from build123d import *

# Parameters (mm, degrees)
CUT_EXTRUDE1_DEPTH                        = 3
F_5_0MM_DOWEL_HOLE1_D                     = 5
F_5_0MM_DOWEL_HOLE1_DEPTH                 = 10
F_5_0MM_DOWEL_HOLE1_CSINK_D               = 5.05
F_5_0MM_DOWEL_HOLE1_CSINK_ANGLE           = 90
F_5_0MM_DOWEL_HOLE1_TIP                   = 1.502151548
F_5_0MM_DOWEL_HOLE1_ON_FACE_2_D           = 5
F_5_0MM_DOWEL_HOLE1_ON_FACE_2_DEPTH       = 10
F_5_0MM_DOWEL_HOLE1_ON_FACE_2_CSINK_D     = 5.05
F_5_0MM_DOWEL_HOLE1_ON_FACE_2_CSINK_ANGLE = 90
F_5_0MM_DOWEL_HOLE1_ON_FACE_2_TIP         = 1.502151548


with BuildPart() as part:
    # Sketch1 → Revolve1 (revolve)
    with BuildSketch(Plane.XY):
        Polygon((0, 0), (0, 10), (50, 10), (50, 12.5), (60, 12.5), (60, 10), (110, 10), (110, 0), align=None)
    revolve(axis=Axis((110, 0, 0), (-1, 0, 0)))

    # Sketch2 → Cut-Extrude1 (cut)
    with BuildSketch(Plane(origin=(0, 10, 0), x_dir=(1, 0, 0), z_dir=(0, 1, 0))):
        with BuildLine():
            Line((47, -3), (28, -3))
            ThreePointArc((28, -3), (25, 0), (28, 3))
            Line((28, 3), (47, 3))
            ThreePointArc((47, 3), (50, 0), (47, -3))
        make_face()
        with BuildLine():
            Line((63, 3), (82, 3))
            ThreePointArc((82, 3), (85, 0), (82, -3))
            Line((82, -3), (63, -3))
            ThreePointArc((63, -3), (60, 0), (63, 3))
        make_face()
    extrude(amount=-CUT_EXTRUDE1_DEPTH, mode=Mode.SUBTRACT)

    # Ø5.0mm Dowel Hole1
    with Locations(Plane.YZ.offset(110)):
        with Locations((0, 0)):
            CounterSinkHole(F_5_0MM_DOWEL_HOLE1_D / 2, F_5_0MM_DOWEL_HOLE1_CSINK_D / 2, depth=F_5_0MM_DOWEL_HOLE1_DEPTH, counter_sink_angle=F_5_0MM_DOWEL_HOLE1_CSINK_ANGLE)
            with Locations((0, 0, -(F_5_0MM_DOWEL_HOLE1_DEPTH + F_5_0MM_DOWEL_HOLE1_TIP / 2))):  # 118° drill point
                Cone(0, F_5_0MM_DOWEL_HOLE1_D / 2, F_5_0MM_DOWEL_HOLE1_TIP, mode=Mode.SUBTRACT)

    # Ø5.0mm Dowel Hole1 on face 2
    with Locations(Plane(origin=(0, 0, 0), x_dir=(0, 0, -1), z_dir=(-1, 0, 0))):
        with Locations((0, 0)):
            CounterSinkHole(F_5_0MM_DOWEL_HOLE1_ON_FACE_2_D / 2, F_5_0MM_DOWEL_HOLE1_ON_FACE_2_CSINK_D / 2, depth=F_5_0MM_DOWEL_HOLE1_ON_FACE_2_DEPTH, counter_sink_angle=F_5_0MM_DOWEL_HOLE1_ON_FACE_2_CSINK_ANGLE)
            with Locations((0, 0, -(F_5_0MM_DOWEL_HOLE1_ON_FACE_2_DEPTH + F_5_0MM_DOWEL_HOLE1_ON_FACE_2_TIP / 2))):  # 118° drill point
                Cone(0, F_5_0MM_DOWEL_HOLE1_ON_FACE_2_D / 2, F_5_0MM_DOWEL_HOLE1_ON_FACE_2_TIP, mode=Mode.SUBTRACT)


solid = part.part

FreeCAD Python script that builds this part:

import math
import FreeCAD as App
import Part
import Sketcher

V = App.Vector
Q = App.Units.Quantity

doc = App.newDocument("Part")
body = doc.addObject("PartDesign::Body", "Body")

# Sketch on XY plane
sketch1 = body.newObject("Sketcher::SketchObject", "Sketch")
sketch1.AttachmentSupport = (doc.getObject("XY_Plane"), [""])
sketch1.MapMode = "FlatFace"
sketch1.addGeometry([
    Part.LineSegment(V(0, 10, 0), V(0, 0, 0)),  # 0
    Part.LineSegment(V(0, 0, 0), V(110, 0, 0)),  # 1
    Part.LineSegment(V(110, 0, 0), V(110, 10, 0)),  # 2
    Part.LineSegment(V(110, 10, 0), V(60, 10, 0)),  # 3
    Part.LineSegment(V(60, 10, 0), V(60, 12.5, 0)),  # 4
    Part.LineSegment(V(60, 12.5, 0), V(50, 12.5, 0)),  # 5
    Part.LineSegment(V(50, 12.5, 0), V(50, 10, 0)),  # 6
    Part.LineSegment(V(50, 10, 0), V(0, 10, 0)),  # 7
], False)
sketch1.addConstraint([
    Sketcher.Constraint("Coincident", 0, 2, 1, 1),
    Sketcher.Constraint("Coincident", 1, 2, 2, 1),
    Sketcher.Constraint("Coincident", 2, 2, 3, 1),
    Sketcher.Constraint("Coincident", 3, 2, 4, 1),
    Sketcher.Constraint("Coincident", 4, 2, 5, 1),
    Sketcher.Constraint("Coincident", 5, 2, 6, 1),
    Sketcher.Constraint("Coincident", 6, 2, 7, 1),
    Sketcher.Constraint("Coincident", 7, 2, 0, 1),
    Sketcher.Constraint("Vertical", 0),
    Sketcher.Constraint("Horizontal", 1),
    Sketcher.Constraint("Vertical", 2),
    Sketcher.Constraint("Horizontal", 3),
    Sketcher.Constraint("Vertical", 4),
    Sketcher.Constraint("Horizontal", 5),
    Sketcher.Constraint("Vertical", 6),
    Sketcher.Constraint("Horizontal", 7),
    Sketcher.Constraint("Coincident", 0, 2, -1, 1),
    Sketcher.Constraint("Horizontal", 3, 2, 6, 2),
    Sketcher.Constraint("Equal", 3, 7),
    Sketcher.Constraint("Equal", 5, 0),
    Sketcher.Constraint("DistanceX", 1, 1, 1, 2, Q("110 mm")),
    Sketcher.Constraint("DistanceX", 3, 2, 3, 1, Q("50 mm")),
    Sketcher.Constraint("DistanceY", 4, 1, 4, 2, Q("2.5 mm")),
])
revolution = body.newObject("PartDesign::Revolution", "Revolution")
revolution.Profile = sketch1
revolution.ReferenceAxis = (sketch1, ["H_Axis"])
revolution.Angle = 360

# Sketch on XZ plane
sketch2 = body.newObject("Sketcher::SketchObject", "Sketch001")
sketch2.AttachmentSupport = (doc.getObject("XZ_Plane"), [""])
sketch2.MapMode = "FlatFace"
sketch2.AttachmentOffset = App.Placement(V(0, 0, -10), App.Rotation())
sketch2.addGeometry([
    Part.LineSegment(V(28, 3, 0), V(47, 3, 0)),  # 0
    Part.ArcOfCircle(Part.Circle(V(47, 0, 0), V(0, 0, 1), 3), math.radians(-90), math.radians(90)),  # 1
    Part.LineSegment(V(47, -3, 0), V(28, -3, 0)),  # 2
    Part.ArcOfCircle(Part.Circle(V(28, 0, 0), V(0, 0, 1), 3), math.radians(90), math.radians(270)),  # 3
    Part.LineSegment(V(82, -3, 0), V(63, -3, 0)),  # 4
    Part.ArcOfCircle(Part.Circle(V(63, 0, 0), V(0, 0, 1), 3), math.radians(90), math.radians(270)),  # 5
    Part.LineSegment(V(63, 3, 0), V(82, 3, 0)),  # 6
    Part.ArcOfCircle(Part.Circle(V(82, 0, 0), V(0, 0, 1), 3), math.radians(-90), math.radians(90)),  # 7
], False)
sketch2.addConstraint([
    Sketcher.Constraint("Tangent", 0, 2, 1, 2),
    Sketcher.Constraint("Tangent", 1, 1, 2, 1),
    Sketcher.Constraint("Tangent", 2, 2, 3, 2),
    Sketcher.Constraint("Tangent", 3, 1, 0, 1),
    Sketcher.Constraint("Tangent", 4, 2, 5, 2),
    Sketcher.Constraint("Tangent", 5, 1, 6, 1),
    Sketcher.Constraint("Tangent", 6, 2, 7, 2),
    Sketcher.Constraint("Tangent", 7, 1, 4, 1),
    Sketcher.Constraint("Horizontal", 0),
    Sketcher.Constraint("Horizontal", 2),
    Sketcher.Constraint("Horizontal", 4),
    Sketcher.Constraint("Horizontal", 6),
    Sketcher.Constraint("Equal", 3, 5),
    Sketcher.Constraint("PointOnObject", 1, 3, -1),
    Sketcher.Constraint("PointOnObject", 5, 3, -1),
    Sketcher.Constraint("Equal", 2, 4),
    Sketcher.Constraint("Radius", 1, Q("3 mm")),
    Sketcher.Constraint("DistanceX", 0, 1, 0, 2, Q("19 mm")),
    Sketcher.Constraint("DistanceX", -1, 1, 1, 3, Q("47 mm")),
    Sketcher.Constraint("DistanceX", -1, 1, 5, 3, Q("63 mm")),
])
pocket1 = body.newObject("PartDesign::Pocket", "Pocket")
pocket1.Profile = sketch2
pocket1.Length = 3
pocket1.Reversed = True

# Sketch on YZ plane
sketch3 = body.newObject("Sketcher::SketchObject", "Sketch002")
sketch3.AttachmentSupport = (doc.getObject("YZ_Plane"), [""])
sketch3.MapMode = "FlatFace"
sketch3.AttachmentOffset = App.Placement(V(0, 0, 110), App.Rotation())
sketch3.addGeometry(Part.Circle(V(0, 0, 0), V(0, 0, 1), 2.5), False)
sketch3.addConstraint([
    Sketcher.Constraint("Coincident", 0, 3, -1, 1),
    Sketcher.Constraint("Diameter", 0, Q("5 mm")),
])
doc.recompute()
hole = body.newObject("PartDesign::Hole", "Hole")
hole.Profile = sketch3
hole.ThreadType = "None"
hole.Diameter = 5
hole.DepthType = "Dimension"
hole.Depth = 10
hole.DrillPoint = "Angled"
hole.DrillPointAngle = 118
hole.HoleCutType = "Countersink"
hole.HoleCutDiameter = 5.05
hole.HoleCutCountersinkAngle = 90

# Sketch on YZ plane
sketch4 = body.newObject("Sketcher::SketchObject", "Sketch003")
sketch4.AttachmentSupport = (doc.getObject("YZ_Plane"), [""])
sketch4.MapMode = "FlatFace"
sketch4.addGeometry(Part.Circle(V(0, 0, 0), V(0, 0, 1), 2.5), False)
sketch4.addConstraint([
    Sketcher.Constraint("Coincident", 0, 3, -1, 1),
    Sketcher.Constraint("Diameter", 0, Q("5 mm")),
])
doc.recompute()
hole2 = body.newObject("PartDesign::Hole", "Hole001")
hole2.Profile = sketch4
hole2.ThreadType = "None"
hole2.Diameter = 5
hole2.DepthType = "Dimension"
hole2.Depth = 10
hole2.DrillPoint = "Angled"
hole2.DrillPointAngle = 118
hole2.HoleCutType = "Countersink"
hole2.HoleCutDiameter = 5.05
hole2.HoleCutCountersinkAngle = 90
hole2.Reversed = True

doc.recompute()
